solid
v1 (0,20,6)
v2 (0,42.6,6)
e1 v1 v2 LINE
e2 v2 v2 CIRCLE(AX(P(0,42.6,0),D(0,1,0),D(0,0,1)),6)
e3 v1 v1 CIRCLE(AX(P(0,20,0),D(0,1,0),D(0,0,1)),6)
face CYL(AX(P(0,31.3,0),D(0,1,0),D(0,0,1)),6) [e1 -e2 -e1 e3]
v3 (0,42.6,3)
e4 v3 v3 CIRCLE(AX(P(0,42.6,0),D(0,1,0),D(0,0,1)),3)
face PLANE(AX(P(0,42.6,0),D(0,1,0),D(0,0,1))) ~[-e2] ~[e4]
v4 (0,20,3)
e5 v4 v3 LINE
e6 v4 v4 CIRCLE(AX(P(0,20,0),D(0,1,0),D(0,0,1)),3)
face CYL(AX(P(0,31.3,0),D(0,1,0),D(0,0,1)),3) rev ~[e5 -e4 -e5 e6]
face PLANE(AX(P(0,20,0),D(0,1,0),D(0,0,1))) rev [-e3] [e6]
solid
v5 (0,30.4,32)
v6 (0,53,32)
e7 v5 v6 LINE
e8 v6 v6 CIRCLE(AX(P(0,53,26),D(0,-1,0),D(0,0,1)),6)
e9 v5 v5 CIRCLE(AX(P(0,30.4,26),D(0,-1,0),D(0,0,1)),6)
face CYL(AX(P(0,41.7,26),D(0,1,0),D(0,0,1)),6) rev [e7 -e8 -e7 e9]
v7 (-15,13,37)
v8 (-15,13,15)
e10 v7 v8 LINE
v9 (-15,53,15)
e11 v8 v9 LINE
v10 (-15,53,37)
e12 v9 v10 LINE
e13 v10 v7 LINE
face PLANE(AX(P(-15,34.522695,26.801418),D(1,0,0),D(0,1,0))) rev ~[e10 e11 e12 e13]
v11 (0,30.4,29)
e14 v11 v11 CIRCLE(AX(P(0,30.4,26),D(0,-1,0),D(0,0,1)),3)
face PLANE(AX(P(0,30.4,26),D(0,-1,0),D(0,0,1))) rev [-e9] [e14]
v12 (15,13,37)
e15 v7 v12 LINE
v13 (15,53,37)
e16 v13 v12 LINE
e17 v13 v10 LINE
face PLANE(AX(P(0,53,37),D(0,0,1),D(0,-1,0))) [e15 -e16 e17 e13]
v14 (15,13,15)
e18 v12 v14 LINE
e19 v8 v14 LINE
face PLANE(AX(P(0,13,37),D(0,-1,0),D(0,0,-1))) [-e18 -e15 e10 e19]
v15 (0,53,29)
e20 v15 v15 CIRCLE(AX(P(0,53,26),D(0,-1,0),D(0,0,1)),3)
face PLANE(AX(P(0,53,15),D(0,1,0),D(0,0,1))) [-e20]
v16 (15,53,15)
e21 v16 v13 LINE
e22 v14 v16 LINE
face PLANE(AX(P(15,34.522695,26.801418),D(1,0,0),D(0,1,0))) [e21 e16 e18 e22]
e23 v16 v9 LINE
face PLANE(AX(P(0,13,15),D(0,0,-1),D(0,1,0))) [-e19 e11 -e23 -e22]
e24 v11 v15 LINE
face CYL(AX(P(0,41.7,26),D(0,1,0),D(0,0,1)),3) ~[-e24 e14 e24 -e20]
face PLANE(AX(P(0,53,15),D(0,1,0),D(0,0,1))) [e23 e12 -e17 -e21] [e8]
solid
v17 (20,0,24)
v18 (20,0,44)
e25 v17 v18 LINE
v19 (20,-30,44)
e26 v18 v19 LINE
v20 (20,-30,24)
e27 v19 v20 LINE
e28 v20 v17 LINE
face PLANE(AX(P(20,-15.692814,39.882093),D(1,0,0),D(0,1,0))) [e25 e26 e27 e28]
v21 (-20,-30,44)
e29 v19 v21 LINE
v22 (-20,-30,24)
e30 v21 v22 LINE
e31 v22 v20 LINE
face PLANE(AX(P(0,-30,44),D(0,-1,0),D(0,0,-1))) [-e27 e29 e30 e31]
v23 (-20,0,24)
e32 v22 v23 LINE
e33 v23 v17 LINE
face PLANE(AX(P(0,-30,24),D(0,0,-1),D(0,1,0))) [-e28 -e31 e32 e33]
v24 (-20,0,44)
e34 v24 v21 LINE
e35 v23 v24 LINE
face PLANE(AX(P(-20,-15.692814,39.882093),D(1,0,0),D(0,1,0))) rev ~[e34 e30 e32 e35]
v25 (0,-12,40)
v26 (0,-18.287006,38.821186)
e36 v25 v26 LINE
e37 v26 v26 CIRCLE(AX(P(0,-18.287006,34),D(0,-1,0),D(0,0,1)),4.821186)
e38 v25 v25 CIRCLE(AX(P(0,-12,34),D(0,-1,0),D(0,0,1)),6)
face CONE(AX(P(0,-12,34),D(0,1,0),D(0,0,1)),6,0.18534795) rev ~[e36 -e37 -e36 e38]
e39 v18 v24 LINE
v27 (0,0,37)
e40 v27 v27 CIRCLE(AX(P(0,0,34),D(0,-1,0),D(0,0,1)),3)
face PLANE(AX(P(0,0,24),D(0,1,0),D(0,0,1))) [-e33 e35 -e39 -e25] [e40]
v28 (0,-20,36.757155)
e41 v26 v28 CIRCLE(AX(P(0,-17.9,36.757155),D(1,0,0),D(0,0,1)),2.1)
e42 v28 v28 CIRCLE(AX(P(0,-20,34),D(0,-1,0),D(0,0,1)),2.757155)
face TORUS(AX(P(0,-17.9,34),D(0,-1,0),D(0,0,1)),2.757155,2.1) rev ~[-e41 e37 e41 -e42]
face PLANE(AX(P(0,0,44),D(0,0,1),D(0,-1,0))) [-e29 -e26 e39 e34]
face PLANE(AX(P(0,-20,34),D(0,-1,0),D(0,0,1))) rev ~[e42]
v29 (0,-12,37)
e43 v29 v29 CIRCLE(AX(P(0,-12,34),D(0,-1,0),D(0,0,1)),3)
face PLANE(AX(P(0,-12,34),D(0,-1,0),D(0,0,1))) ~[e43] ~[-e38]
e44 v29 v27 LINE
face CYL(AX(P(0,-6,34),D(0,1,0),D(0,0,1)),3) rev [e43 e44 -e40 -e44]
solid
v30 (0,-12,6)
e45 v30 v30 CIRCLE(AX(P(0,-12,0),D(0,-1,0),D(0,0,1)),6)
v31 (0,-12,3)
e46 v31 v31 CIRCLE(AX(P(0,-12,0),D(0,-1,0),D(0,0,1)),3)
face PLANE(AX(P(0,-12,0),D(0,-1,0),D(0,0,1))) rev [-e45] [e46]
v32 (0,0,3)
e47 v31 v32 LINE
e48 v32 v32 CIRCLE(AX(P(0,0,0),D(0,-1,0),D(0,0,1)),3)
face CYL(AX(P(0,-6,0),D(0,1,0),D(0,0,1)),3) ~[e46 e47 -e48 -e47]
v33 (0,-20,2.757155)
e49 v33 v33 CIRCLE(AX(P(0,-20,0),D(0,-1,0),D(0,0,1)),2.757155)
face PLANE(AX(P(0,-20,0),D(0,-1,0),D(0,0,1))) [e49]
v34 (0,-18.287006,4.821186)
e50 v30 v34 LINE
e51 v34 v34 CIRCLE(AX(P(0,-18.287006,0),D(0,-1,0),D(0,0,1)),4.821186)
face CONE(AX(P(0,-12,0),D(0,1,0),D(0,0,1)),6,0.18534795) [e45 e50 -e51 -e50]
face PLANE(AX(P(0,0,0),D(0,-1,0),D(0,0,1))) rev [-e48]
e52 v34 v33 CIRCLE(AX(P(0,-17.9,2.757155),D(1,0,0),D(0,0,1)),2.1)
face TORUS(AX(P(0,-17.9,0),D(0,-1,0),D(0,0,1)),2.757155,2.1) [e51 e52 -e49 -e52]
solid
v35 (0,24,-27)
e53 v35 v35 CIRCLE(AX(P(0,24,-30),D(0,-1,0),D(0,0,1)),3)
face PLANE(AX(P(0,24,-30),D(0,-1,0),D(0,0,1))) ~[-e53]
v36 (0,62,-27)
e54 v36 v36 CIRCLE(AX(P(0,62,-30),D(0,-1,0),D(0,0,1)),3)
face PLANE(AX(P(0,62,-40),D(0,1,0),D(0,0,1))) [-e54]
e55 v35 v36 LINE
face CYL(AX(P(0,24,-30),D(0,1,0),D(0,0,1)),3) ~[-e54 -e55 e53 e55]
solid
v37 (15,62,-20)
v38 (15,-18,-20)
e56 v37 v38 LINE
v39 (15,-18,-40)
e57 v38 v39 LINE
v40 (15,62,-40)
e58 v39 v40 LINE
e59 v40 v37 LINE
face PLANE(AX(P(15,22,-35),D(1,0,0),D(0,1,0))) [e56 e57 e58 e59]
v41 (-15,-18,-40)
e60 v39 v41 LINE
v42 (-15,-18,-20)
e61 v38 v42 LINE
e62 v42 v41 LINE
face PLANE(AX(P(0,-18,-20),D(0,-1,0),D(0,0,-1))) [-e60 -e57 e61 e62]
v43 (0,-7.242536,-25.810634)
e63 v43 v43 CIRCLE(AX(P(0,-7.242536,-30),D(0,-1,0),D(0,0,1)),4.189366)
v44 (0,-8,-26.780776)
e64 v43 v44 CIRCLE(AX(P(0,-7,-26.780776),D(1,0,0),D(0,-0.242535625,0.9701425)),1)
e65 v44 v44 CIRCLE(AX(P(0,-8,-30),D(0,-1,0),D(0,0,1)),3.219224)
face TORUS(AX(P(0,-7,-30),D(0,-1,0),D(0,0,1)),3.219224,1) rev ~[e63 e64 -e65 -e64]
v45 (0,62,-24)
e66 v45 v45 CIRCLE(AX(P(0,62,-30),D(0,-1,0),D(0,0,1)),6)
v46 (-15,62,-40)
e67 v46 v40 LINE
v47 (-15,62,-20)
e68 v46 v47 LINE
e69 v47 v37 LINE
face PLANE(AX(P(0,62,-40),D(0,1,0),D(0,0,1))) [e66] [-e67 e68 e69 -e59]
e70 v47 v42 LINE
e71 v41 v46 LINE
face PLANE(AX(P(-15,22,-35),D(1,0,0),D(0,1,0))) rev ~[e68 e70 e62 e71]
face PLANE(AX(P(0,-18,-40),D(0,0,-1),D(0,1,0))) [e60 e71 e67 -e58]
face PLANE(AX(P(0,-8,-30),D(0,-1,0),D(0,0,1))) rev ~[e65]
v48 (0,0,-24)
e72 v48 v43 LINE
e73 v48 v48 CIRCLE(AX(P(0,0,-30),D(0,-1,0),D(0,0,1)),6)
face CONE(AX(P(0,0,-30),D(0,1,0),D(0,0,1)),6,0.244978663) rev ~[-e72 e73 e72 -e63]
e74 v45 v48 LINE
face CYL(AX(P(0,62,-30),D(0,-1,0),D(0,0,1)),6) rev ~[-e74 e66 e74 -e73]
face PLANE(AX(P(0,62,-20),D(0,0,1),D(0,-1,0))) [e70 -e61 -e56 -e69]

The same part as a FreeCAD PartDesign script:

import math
import FreeCAD as App
import Part
import Sketcher
from FreeCAD import Vector
Q = App.Units.Quantity


def edges_at(feature, points):
    """Names of the edges that pass closest to the given points."""
    edges = feature.Shape.Edges
    near = lambda p: min(range(len(edges)), key=lambda i: edges[i].distToShape(Part.Vertex(*p))[0])
    return sorted({f"Edge{near(p) + 1}" for p in points})

doc = App.newDocument("Part")
body = doc.addObject("PartDesign::Body", "Body")

sketch1 = body.newObject("Sketcher::SketchObject", "Sketch")
sketch1.AttachmentSupport = (doc.getObject("YZ_Plane"), [""])
sketch1.MapMode = "FlatFace"
sketch1.addGeometry(Part.LineSegment(Vector(-20, 0, 0), Vector(0, 0, 0)), False)
sketch1.addGeometry(Part.LineSegment(Vector(0, 0, 0), Vector(0, 3, 0)), False)
sketch1.addGeometry(Part.LineSegment(Vector(0, 3, 0), Vector(-12, 3, 0)), False)
sketch1.addGeometry(Part.LineSegment(Vector(-12, 3, 0), Vector(-12, 6, 0)), False)
sketch1.addGeometry(Part.LineSegment(Vector(-12, 6, 0), Vector(-20, 4.5, 0)), False)
sketch1.addGeometry(Part.LineSegment(Vector(-20, 4.5, 0), Vector(-20, 0, 0)), False)
sketch1.addConstraint(Sketcher.Constraint("Coincident", 0, 2, 1, 1))
sketch1.addConstraint(Sketcher.Constraint("Coincident", 1, 2, 2, 1))
sketch1.addConstraint(Sketcher.Constraint("Coincident", 2, 2, 3, 1))
sketch1.addConstraint(Sketcher.Constraint("Coincident", 3, 2, 4, 1))
sketch1.addConstraint(Sketcher.Constraint("Coincident", 4, 2, 5, 1))
sketch1.addConstraint(Sketcher.Constraint("Coincident", 5, 2, 0, 1))
sketch1.addConstraint(Sketcher.Constraint("Horizontal", 0))
sketch1.addConstraint(Sketcher.Constraint("Vertical", 1))
sketch1.addConstraint(Sketcher.Constraint("Horizontal", 2))
sketch1.addConstraint(Sketcher.Constraint("Vertical", 3))
sketch1.addConstraint(Sketcher.Constraint("Vertical", 5))
sketch1.addConstraint(Sketcher.Constraint("Coincident", 0, 2, -1, 1))
sketch1.addConstraint(Sketcher.Constraint("Equal", 1, 3))
sketch1.addConstraint(Sketcher.Constraint("DistanceX", 0, 1, 0, 2, Q("20 mm")))
sketch1.addConstraint(Sketcher.Constraint("DistanceX", 2, 2, 2, 1, Q("12 mm")))
sketch1.addConstraint(Sketcher.Constraint("DistanceY", 1, 1, 1, 2, Q("3 mm")))
sketch1.addConstraint(Sketcher.Constraint("DistanceY", 5, 2, 5, 1, Q("4.5 mm")))
revolution = body.newObject("PartDesign::Revolution", "Revolution")
revolution.Profile = sketch1
revolution.ReferenceAxis = (sketch1, ["H_Axis"])
revolution.Angle = 360
doc.recompute()

fillet = body.newObject("PartDesign::Fillet", "Fillet")
fillet.Base = (revolution, edges_at(revolution, [(0, -20, -4.5)]))
fillet.Radius = 2.1
body2 = doc.addObject("PartDesign::Body", "Body001")

sketch2 = body2.newObject("Sketcher::SketchObject", "Sketch001")
sketch2.AttachmentSupport = (doc.getObject("YZ_Plane001"), [""])
sketch2.MapMode = "FlatFace"
sketch2.addGeometry(Part.LineSegment(Vector(20, 6, 0), Vector(20, 3, 0)), False)
sketch2.addGeometry(Part.LineSegment(Vector(20, 3, 0), Vector(42.6, 3, 0)), False)
sketch2.addGeometry(Part.LineSegment(Vector(42.6, 3, 0), Vector(42.6, 6, 0)), False)
sketch2.addGeometry(Part.LineSegment(Vector(42.6, 6, 0), Vector(20, 6, 0)), False)
sketch2.addConstraint(Sketcher.Constraint("Coincident", 0, 2, 1, 1))
sketch2.addConstraint(Sketcher.Constraint("Coincident", 1, 2, 2, 1))
sketch2.addConstraint(Sketcher.Constraint("Coincident", 2, 2, 3, 1))
sketch2.addConstraint(Sketcher.Constraint("Coincident", 3, 2, 0, 1))
sketch2.addConstraint(Sketcher.Constraint("Vertical", 0))
sketch2.addConstraint(Sketcher.Constraint("Horizontal", 1))
sketch2.addConstraint(Sketcher.Constraint("Vertical", 2))
sketch2.addConstraint(Sketcher.Constraint("Horizontal", 3))
sketch2.addConstraint(Sketcher.Constraint("DistanceY", 0, 2, 0, 1, Q("3 mm")))
sketch2.addConstraint(Sketcher.Constraint("DistanceX", 1, 1, 1, 2, Q("22.6 mm")))
sketch2.addConstraint(Sketcher.Constraint("DistanceX", -1, 1, 0, 2, Q("20 mm")))
sketch2.addConstraint(Sketcher.Constraint("DistanceY", -1, 1, 0, 2, Q("3 mm")))
revolution2 = body2.newObject("PartDesign::Revolution", "Revolution001")
revolution2.Profile = sketch2
revolution2.ReferenceAxis = (sketch2, ["H_Axis"])
revolution2.Angle = 360
body3 = doc.addObject("PartDesign::Body", "Body002")

sketch3 = body3.newObject("Sketcher::SketchObject", "Sketch002")
sketch3.AttachmentSupport = (doc.getObject("YZ_Plane002"), [""])
sketch3.MapMode = "FlatFace"
sketch3.addGeometry(Part.LineSegment(Vector(-30, 44, 0), Vector(-30, 24, 0)), False)
sketch3.addGeometry(Part.LineSegment(Vector(-30, 24, 0), Vector(0, 24, 0)), False)
sketch3.addGeometry(Part.LineSegment(Vector(0, 24, 0), Vector(0, 44, 0)), False)
sketch3.addGeometry(Part.LineSegment(Vector(0, 44, 0), Vector(-30, 44, 0)), False)
sketch3.addConstraint(Sketcher.Constraint("Coincident", 0, 2, 1, 1))
sketch3.addConstraint(Sketcher.Constraint("Coincident", 1, 2, 2, 1))
sketch3.addConstraint(Sketcher.Constraint("Coincident", 2, 2, 3, 1))
sketch3.addConstraint(Sketcher.Constraint("Coincident", 3, 2, 0, 1))
sketch3.addConstraint(Sketcher.Constraint("Vertical", 0))
sketch3.addConstraint(Sketcher.Constraint("Horizontal", 1))
sketch3.addConstraint(Sketcher.Constraint("Vertical", 2))
sketch3.addConstraint(Sketcher.Constraint("Horizontal", 3))
sketch3.addConstraint(Sketcher.Constraint("PointOnObject", 1, 2, -2))
sketch3.addConstraint(Sketcher.Constraint("DistanceX", 1, 1, 1, 2, Q("30 mm")))
sketch3.addConstraint(Sketcher.Constraint("DistanceY", 0, 2, 0, 1, Q("20 mm")))
sketch3.addConstraint(Sketcher.Constraint("DistanceY", -1, 1, 0, 2, Q("24 mm")))
pad1 = body3.newObject("PartDesign::Pad", "Pad")
pad1.Profile = sketch3
pad1.Length = 40
pad1.Midplane = True

sketch4 = body3.newObject("Sketcher::SketchObject", "Sketch003")
sketch4.AttachmentSupport = (doc.getObject("YZ_Plane002"), [""])
sketch4.MapMode = "FlatFace"
sketch4.addGeometry(Part.LineSegment(Vector(-20, 38.5, 0), Vector(-20, 34, 0)), False)
sketch4.addGeometry(Part.LineSegment(Vector(-20, 34, 0), Vector(0, 34, 0)), False)
sketch4.addGeometry(Part.LineSegment(Vector(0, 34, 0), Vector(0, 37, 0)), False)
sketch4.addGeometry(Part.LineSegment(Vector(0, 37, 0), Vector(-12, 37, 0)), False)
sketch4.addGeometry(Part.LineSegment(Vector(-12, 37, 0), Vector(-12, 40, 0)), False)
sketch4.addGeometry(Part.LineSegment(Vector(-12, 40, 0), Vector(-20, 38.5, 0)), False)
sketch4.addGeometry(Part.LineSegment(Vector(0, 34, 0), Vector(-20, 34, 0)), True)
sketch4.addConstraint(Sketcher.Constraint("Coincident", 0, 2, 1, 1))
sketch4.addConstraint(Sketcher.Constraint("Coincident", 1, 2, 2, 1))
sketch4.addConstraint(Sketcher.Constraint("Coincident", 2, 2, 3, 1))
sketch4.addConstraint(Sketcher.Constraint("Coincident", 3, 2, 4, 1))
sketch4.addConstraint(Sketcher.Constraint("Coincident", 4, 2, 5, 1))
sketch4.addConstraint(Sketcher.Constraint("Coincident", 5, 2, 0, 1))
sketch4.addConstraint(Sketcher.Constraint("Vertical", 0))
sketch4.addConstraint(Sketcher.Constraint("Horizontal", 1))
sketch4.addConstraint(Sketcher.Constraint("Vertical", 2))
sketch4.addConstraint(Sketcher.Constraint("Horizontal", 3))
sketch4.addConstraint(Sketcher.Constraint("Vertical", 4))
sketch4.addConstraint(Sketcher.Constraint("Horizontal", 6))
sketch4.addConstraint(Sketcher.Constraint("Coincident", 6, 1, 1, 2))
sketch4.addConstraint(Sketcher.Constraint("PointOnObject", 1, 2, -2))
sketch4.addConstraint(Sketcher.Constraint("Vertical", 5, 2, 6, 2))
sketch4.addConstraint(Sketcher.Constraint("Equal", 2, 4))
sketch4.addConstraint(Sketcher.Constraint("DistanceX", 1, 1, 1, 2, Q("20 mm")))
sketch4.addConstraint(Sketcher.Constraint("DistanceX", 3, 2, 3, 1, Q("12 mm")))
sketch4.addConstraint(Sketcher.Constraint("DistanceY", 2, 1, 2, 2, Q("3 mm")))
sketch4.addConstraint(Sketcher.Constraint("DistanceY", 0, 2, 0, 1, Q("4.5 mm")))
sketch4.addConstraint(Sketcher.Constraint("DistanceY", -1, 1, 0, 2, Q("34 mm")))
groove = body3.newObject("PartDesign::Groove", "Groove")
groove.Profile = sketch4
groove.ReferenceAxis = (sketch4, ["Axis0"])
groove.Angle = 360
doc.recompute()

fillet2 = body3.newObject("PartDesign::Fillet", "Fillet001")
fillet2.Base = (groove, edges_at(groove, [(0, -20, 29.5)]))
fillet2.Radius = 2.1
body4 = doc.addObject("PartDesign::Body", "Body003")

sketch5 = body4.newObject("Sketcher::SketchObject", "Sketch004")
sketch5.AttachmentSupport = (doc.getObject("YZ_Plane003"), [""])
sketch5.MapMode = "FlatFace"
sketch5.addGeometry(Part.LineSegment(Vector(53, 37, 0), Vector(13, 37, 0)), False)
sketch5.addGeometry(Part.LineSegment(Vector(13, 37, 0), Vector(13, 15, 0)), False)
sketch5.addGeometry(Part.LineSegment(Vector(13, 15, 0), Vector(53, 15, 0)), False)
sketch5.addGeometry(Part.LineSegment(Vector(53, 15, 0), Vector(53, 37, 0)), False)
sketch5.addConstraint(Sketcher.Constraint("Coincident", 0, 2, 1, 1))
sketch5.addConstraint(Sketcher.Constraint("Coincident", 1, 2, 2, 1))
sketch5.addConstraint(Sketcher.Constraint("Coincident", 2, 2, 3, 1))
sketch5.addConstraint(Sketcher.Constraint("Coincident", 3, 2, 0, 1))
sketch5.addConstraint(Sketcher.Constraint("Horizontal", 0))
sketch5.addConstraint(Sketcher.Constraint("Vertical", 1))
sketch5.addConstraint(Sketcher.Constraint("Horizontal", 2))
sketch5.addConstraint(Sketcher.Constraint("Vertical", 3))
sketch5.addConstraint(Sketcher.Constraint("DistanceX", 0, 2, 0, 1, Q("40 mm")))
sketch5.addConstraint(Sketcher.Constraint("DistanceY", 1, 2, 1, 1, Q("22 mm")))
sketch5.addConstraint(Sketcher.Constraint("DistanceX", -1, 1, 0, 2, Q("13 mm")))
sketch5.addConstraint(Sketcher.Constraint("DistanceY", -1, 1, 0, 2, Q("37 mm")))
pad2 = body4.newObject("PartDesign::Pad", "Pad001")
pad2.Profile = sketch5
pad2.Length = 30
pad2.Midplane = True

sketch6 = body4.newObject("Sketcher::SketchObject", "Sketch005")
sketch6.AttachmentSupport = (doc.getObject("YZ_Plane003"), [""])
sketch6.MapMode = "FlatFace"
sketch6.addGeometry(Part.LineSegment(Vector(30.4, 32, 0), Vector(30.4, 29, 0)), False)
sketch6.addGeometry(Part.LineSegment(Vector(30.4, 29, 0), Vector(53, 29, 0)), False)
sketch6.addGeometry(Part.LineSegment(Vector(53, 29, 0), Vector(53, 32, 0)), False)
sketch6.addGeometry(Part.LineSegment(Vector(53, 32, 0), Vector(30.4, 32, 0)), False)
sketch6.addGeometry(Part.LineSegment(Vector(53, 26, 0), Vector(30.4, 26, 0)), True)
sketch6.addConstraint(Sketcher.Constraint("Coincident", 0, 2, 1, 1))
sketch6.addConstraint(Sketcher.Constraint("Coincident", 1, 2, 2, 1))
sketch6.addConstraint(Sketcher.Constraint("Coincident", 2, 2, 3, 1))
sketch6.addConstraint(Sketcher.Constraint("Coincident", 3, 2, 0, 1))
sketch6.addConstraint(Sketcher.Constraint("Vertical", 0))
sketch6.addConstraint(Sketcher.Constraint("Horizontal", 1))
sketch6.addConstraint(Sketcher.Constraint("Vertical", 2))
sketch6.addConstraint(Sketcher.Constraint("Horizontal", 3))
sketch6.addConstraint(Sketcher.Constraint("Horizontal", 4))
sketch6.addConstraint(Sketcher.Constraint("Vertical", 2, 2, 4, 1))
sketch6.addConstraint(Sketcher.Constraint("Vertical", 3, 2, 4, 2))
sketch6.addConstraint(Sketcher.Constraint("DistanceY", 0, 2, 0, 1, Q("3 mm")))
sketch6.addConstraint(Sketcher.Constraint("DistanceX", 1, 1, 1, 2, Q("22.6 mm")))
sketch6.addConstraint(Sketcher.Constraint("DistanceY", -1, 1, 0, 2, Q("29 mm")))
sketch6.addConstraint(Sketcher.Constraint("DistanceX", -1, 1, 1, 2, Q("53 mm")))
sketch6.addConstraint(Sketcher.Constraint("DistanceY", -1, 1, 4, 1, Q("26 mm")))
groove2 = body4.newObject("PartDesign::Groove", "Groove001")
groove2.Profile = sketch6
groove2.ReferenceAxis = (sketch6, ["Axis0"])
groove2.Angle = 360
body5 = doc.addObject("PartDesign::Body", "Body004")
body5.AllowCompound = True

sketch7 = body5.newObject("Sketcher::SketchObject", "Sketch006")
sketch7.AttachmentSupport = (doc.getObject("YZ_Plane004"), [""])
sketch7.MapMode = "FlatFace"
sketch7.addGeometry(Part.LineSegment(Vector(-18, -40, 0), Vector(62, -40, 0)), False)
sketch7.addGeometry(Part.LineSegment(Vector(62, -40, 0), Vector(62, -20, 0)), False)
sketch7.addGeometry(Part.LineSegment(Vector(62, -20, 0), Vector(-18, -20, 0)), False)
sketch7.addGeometry(Part.LineSegment(Vector(-18, -20, 0), Vector(-18, -40, 0)), False)
sketch7.addConstraint(Sketcher.Constraint("Coincident", 0, 2, 1, 1))
sketch7.addConstraint(Sketcher.Constraint("Coincident", 1, 2, 2, 1))
sketch7.addConstraint(Sketcher.Constraint("Coincident", 2, 2, 3, 1))
sketch7.addConstraint(Sketcher.Constraint("Coincident", 3, 2, 0, 1))
sketch7.addConstraint(Sketcher.Constraint("Horizontal", 0))
sketch7.addConstraint(Sketcher.Constraint("Vertical", 1))
sketch7.addConstraint(Sketcher.Constraint("Horizontal", 2))
sketch7.addConstraint(Sketcher.Constraint("Vertical", 3))
sketch7.addConstraint(Sketcher.Constraint("DistanceX", 0, 1, 0, 2, Q("80 mm")))
sketch7.addConstraint(Sketcher.Constraint("DistanceY", 1, 1, 1, 2, Q("20 mm")))
sketch7.addConstraint(Sketcher.Constraint("DistanceX", -1, 1, 0, 2, Q("62 mm")))
sketch7.addConstraint(Sketcher.Constraint("DistanceY", 0, 2, -1, 1, Q("40 mm")))
pad3 = body5.newObject("PartDesign::Pad", "Pad002")
pad3.Profile = sketch7
pad3.Length = 30
pad3.Midplane = True

sketch8 = body5.newObject("Sketcher::SketchObject", "Sketch007")
sketch8.AttachmentSupport = (doc.getObject("YZ_Plane004"), [""])
sketch8.MapMode = "FlatFace"
sketch8.addGeometry(Part.LineSegment(Vector(0, -24, 0), Vector(-7.2, -25.8, 0)), False)
sketch8.addGeometry(Part.ArcOfCircle(Part.Circle(Vector(-7, -26.8, 0), Vector(0, 0, 1), 1), math.radians(104), math.radians(180)), False)
sketch8.addGeometry(Part.LineSegment(Vector(-8, -26.8, 0), Vector(-8, -30, 0)), False)
sketch8.addGeometry(Part.LineSegment(Vector(-8, -30, 0), Vector(24, -30, 0)), False)
sketch8.addGeometry(Part.LineSegment(Vector(24, -30, 0), Vector(24, -27, 0)), False)
sketch8.addGeometry(Part.LineSegment(Vector(24, -27, 0), Vector(62, -27, 0)), False)
sketch8.addGeometry(Part.LineSegment(Vector(62, -27, 0), Vector(62, -24, 0)), False)
sketch8.addGeometry(Part.LineSegment(Vector(62, -24, 0), Vector(0, -24, 0)), False)
sketch8.addGeometry(Part.LineSegment(Vector(62, -30, 0), Vector(-8, -30, 0)), True)
sketch8.addConstraint(Sketcher.Constraint("Tangent", 0, 2, 1, 1))
sketch8.addConstraint(Sketcher.Constraint("Tangent", 1, 2, 2, 1))
sketch8.addConstraint(Sketcher.Constraint("Coincident", 2, 2, 3, 1))
sketch8.addConstraint(Sketcher.Constraint("Coincident", 3, 2, 4, 1))
sketch8.addConstraint(Sketcher.Constraint("Coincident", 4, 2, 5, 1))
sketch8.addConstraint(Sketcher.Constraint("Coincident", 5, 2, 6, 1))
sketch8.addConstraint(Sketcher.Constraint("Coincident", 6, 2, 7, 1))
sketch8.addConstraint(Sketcher.Constraint("Coincident", 7, 2, 0, 1))
sketch8.addConstraint(Sketcher.Constraint("Vertical", 2))
sketch8.addConstraint(Sketcher.Constraint("Horizontal", 3))
sketch8.addConstraint(Sketcher.Constraint("Vertical", 4))
sketch8.addConstraint(Sketcher.Constraint("Horizontal", 5))
sketch8.addConstraint(Sketcher.Constraint("Vertical", 6))
sketch8.addConstraint(Sketcher.Constraint("Horizontal", 7))
sketch8.addConstraint(Sketcher.Constraint("Horizontal", 8))
sketch8.addConstraint(Sketcher.Constraint("Coincident", 8, 2, 2, 2))
sketch8.addConstraint(Sketcher.Constraint("PointOnObject", 7, 2, -2))
sketch8.addConstraint(Sketcher.Constraint("Vertical", 6, 2, 8, 1))
sketch8.addConstraint(Sketcher.Constraint("Equal", 4, 6))
sketch8.addConstraint(Sketcher.Constraint("Radius", 1, Q("1 mm")))
sketch8.addConstraint(Sketcher.Constraint("DistanceX", 3, 1, 3, 2, Q("32 mm")))
sketch8.addConstraint(Sketcher.Constraint("DistanceX", 5, 1, 5, 2, Q("38 mm")))
sketch8.addConstraint(Sketcher.Constraint("DistanceX", 7, 2, 7, 1, Q("62 mm")))
sketch8.addConstraint(Sketcher.Constraint("DistanceY", 4, 1, 4, 2, Q("3 mm")))
sketch8.addConstraint(Sketcher.Constraint("DistanceY", 2, 2, -1, 1, Q("30 mm")))
sketch8.addConstraint(Sketcher.Constraint("DistanceY", 2, 2, 2, 1, Q("3.219224 mm")))
groove3 = body5.newObject("PartDesign::Groove", "Groove002")
groove3.Profile = sketch8
groove3.ReferenceAxis = (sketch8, ["Axis0"])
groove3.Angle = 360

doc.recompute()
